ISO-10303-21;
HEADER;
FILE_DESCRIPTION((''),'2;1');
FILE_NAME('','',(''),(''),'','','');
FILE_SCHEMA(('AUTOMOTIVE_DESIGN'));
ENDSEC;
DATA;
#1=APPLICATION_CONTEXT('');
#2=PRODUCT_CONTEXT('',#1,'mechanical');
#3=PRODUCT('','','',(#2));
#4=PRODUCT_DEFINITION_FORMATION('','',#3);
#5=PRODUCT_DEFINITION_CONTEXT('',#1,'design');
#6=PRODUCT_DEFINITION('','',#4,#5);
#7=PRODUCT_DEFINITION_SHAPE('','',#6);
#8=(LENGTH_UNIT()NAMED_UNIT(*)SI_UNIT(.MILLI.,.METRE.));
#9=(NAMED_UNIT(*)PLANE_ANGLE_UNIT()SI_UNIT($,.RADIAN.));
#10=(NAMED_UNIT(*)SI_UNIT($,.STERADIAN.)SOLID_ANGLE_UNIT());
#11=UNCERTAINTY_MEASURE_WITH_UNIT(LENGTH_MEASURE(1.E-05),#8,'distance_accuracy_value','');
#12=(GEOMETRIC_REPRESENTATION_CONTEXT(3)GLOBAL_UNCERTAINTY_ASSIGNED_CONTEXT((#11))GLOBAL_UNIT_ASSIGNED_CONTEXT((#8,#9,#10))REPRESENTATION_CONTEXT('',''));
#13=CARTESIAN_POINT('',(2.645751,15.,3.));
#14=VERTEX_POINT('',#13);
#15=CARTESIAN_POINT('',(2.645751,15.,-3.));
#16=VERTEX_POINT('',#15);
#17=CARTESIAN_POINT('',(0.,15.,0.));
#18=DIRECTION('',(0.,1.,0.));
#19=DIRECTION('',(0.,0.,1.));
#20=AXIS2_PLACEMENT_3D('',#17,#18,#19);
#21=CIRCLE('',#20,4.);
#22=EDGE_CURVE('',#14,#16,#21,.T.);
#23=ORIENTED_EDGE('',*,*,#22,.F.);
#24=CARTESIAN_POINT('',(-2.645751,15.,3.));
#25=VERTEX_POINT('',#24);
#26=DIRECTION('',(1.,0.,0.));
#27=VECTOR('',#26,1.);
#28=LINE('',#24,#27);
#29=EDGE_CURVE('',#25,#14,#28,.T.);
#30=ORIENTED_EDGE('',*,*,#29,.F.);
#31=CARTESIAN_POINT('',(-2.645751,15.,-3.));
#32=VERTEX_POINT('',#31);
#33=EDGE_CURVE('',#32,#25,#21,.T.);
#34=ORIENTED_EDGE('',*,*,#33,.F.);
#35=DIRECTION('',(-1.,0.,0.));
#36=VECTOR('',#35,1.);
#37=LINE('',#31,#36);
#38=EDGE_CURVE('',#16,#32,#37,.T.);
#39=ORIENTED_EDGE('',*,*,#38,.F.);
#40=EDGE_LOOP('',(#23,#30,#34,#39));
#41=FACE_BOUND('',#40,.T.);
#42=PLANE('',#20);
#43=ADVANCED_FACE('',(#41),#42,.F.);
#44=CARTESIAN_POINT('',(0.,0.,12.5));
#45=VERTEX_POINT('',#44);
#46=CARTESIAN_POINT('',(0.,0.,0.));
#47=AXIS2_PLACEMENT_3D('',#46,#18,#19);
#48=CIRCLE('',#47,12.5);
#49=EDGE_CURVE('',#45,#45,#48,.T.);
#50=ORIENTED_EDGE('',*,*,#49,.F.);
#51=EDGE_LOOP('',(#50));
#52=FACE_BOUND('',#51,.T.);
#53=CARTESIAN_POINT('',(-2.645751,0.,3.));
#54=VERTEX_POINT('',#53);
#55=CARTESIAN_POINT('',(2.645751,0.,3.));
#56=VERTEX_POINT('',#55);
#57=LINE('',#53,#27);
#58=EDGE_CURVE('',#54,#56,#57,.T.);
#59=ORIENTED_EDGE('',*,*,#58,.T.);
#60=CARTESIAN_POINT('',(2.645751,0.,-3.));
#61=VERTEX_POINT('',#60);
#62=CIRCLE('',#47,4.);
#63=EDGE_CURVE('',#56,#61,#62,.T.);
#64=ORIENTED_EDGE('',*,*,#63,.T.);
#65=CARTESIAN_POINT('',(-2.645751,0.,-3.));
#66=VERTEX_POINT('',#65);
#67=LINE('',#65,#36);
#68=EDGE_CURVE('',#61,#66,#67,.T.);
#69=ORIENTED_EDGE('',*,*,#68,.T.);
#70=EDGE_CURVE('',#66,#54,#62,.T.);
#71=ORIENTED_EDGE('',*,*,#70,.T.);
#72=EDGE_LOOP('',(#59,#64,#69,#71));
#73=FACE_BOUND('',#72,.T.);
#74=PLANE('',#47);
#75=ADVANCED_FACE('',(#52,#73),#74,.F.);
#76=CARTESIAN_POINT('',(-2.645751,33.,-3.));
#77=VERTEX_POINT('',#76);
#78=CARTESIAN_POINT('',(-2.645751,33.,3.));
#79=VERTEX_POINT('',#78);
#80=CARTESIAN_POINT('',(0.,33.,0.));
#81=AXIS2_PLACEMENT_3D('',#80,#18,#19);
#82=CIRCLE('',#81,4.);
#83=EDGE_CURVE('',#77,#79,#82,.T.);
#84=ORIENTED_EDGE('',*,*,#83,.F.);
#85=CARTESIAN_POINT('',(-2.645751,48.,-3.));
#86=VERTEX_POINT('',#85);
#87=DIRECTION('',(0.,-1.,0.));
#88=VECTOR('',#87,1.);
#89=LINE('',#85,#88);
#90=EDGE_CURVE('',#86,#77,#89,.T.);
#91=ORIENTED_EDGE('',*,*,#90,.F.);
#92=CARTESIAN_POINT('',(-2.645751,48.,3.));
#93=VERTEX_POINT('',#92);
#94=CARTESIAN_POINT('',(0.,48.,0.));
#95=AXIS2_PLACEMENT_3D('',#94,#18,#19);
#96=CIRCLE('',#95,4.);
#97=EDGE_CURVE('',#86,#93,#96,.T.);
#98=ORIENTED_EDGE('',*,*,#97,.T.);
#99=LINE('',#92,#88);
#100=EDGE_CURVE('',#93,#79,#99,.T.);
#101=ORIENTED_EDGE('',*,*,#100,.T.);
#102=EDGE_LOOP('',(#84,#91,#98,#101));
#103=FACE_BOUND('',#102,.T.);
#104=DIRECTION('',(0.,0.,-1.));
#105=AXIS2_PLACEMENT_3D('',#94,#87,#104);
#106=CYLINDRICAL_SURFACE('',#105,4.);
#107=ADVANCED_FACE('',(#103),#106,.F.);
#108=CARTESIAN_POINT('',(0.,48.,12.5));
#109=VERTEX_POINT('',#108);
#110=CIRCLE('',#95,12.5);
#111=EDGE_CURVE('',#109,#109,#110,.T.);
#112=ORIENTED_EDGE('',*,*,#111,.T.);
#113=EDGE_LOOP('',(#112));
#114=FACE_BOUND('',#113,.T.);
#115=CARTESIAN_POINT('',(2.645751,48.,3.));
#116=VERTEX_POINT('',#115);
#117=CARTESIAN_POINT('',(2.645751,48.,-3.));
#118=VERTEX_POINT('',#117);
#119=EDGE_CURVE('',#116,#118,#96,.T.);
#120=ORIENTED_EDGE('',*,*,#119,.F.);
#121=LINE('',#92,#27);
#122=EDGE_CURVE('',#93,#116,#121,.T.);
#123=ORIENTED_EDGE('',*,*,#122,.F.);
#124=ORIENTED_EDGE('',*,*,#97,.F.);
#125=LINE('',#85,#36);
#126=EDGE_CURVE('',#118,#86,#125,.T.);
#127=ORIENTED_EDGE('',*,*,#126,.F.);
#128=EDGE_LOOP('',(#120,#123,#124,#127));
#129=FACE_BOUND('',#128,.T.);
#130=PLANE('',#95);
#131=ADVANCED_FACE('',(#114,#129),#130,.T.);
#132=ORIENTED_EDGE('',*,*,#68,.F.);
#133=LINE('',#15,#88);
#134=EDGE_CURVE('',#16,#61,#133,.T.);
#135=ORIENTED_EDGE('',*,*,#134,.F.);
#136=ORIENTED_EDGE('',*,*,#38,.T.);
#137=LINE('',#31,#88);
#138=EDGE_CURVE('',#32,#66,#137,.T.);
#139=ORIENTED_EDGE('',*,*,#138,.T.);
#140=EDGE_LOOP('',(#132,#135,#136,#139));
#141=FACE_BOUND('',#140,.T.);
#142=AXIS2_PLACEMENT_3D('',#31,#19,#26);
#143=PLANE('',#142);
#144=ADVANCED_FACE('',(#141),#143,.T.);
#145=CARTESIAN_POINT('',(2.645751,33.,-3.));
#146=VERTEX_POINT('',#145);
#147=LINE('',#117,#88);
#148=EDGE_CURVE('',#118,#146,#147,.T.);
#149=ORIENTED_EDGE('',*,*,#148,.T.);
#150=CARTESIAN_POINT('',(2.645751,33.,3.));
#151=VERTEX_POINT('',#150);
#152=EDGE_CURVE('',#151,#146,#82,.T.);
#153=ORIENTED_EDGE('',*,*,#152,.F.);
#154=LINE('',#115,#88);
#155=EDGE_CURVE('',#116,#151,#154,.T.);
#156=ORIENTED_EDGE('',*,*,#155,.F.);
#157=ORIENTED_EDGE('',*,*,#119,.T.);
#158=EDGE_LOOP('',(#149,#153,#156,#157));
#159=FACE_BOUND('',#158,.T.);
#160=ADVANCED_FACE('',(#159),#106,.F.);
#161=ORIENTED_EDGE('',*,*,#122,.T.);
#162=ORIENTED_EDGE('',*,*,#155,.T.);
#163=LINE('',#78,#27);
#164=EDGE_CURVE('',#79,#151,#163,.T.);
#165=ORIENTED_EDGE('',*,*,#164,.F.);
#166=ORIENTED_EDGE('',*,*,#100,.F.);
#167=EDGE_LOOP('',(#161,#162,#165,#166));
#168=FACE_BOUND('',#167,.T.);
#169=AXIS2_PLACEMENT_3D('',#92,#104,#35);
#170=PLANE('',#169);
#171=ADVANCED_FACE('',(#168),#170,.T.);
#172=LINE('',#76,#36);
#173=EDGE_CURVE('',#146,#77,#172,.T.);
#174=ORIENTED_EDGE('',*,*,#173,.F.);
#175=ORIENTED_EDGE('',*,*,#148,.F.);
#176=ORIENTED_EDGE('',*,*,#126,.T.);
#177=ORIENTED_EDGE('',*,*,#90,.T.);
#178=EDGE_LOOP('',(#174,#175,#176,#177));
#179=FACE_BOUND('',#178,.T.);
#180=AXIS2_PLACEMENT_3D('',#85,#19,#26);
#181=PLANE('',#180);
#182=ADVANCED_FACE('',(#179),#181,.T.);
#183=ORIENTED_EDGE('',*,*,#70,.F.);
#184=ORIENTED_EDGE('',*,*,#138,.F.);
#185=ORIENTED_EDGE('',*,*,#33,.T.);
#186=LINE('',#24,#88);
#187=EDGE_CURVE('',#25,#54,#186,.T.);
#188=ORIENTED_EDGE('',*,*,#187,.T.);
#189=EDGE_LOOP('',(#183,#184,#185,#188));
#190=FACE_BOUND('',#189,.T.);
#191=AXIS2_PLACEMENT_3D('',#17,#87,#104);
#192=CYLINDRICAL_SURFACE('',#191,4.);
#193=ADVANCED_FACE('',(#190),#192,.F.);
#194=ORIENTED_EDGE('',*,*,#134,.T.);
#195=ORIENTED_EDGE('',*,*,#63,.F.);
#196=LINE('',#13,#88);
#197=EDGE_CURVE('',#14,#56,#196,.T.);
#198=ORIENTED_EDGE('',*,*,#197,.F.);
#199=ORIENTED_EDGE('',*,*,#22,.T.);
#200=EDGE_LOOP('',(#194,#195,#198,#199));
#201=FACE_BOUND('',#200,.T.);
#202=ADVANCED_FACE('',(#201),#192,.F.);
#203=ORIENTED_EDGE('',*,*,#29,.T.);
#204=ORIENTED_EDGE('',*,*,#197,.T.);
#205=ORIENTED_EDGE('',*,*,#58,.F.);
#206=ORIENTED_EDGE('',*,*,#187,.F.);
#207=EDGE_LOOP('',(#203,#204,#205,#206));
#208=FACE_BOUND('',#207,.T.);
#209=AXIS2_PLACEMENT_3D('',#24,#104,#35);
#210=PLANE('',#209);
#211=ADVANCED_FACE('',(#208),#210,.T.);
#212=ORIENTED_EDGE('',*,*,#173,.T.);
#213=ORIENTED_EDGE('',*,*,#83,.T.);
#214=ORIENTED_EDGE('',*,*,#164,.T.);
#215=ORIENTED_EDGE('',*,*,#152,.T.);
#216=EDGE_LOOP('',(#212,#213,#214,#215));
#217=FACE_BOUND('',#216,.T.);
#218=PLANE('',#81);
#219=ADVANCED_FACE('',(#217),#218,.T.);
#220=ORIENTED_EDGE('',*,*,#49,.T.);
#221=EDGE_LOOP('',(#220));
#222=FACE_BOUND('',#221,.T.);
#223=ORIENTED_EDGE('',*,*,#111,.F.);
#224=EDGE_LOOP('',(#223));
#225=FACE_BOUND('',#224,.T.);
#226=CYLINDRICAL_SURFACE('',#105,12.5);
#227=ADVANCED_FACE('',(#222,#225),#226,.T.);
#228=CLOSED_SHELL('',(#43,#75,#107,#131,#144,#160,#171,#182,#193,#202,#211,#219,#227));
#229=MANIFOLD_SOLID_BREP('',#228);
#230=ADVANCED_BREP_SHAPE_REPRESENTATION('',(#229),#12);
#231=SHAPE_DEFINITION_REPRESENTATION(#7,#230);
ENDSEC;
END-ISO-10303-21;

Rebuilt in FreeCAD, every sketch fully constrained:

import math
import FreeCAD as App
import Part
import Sketcher
from FreeCAD import Vector

doc = App.newDocument("Part")
body = doc.addObject("PartDesign::Body", "Body")

sketch1 = body.newObject("Sketcher::SketchObject", "Sketch")
sketch1.AttachmentSupport = (doc.getObject("XZ_Plane"), [""])
sketch1.MapMode = "FlatFace"
sketch1.addGeometry(Part.Circle(Vector(0, 0, 0), Vector(0, 0, 1), 12.5), False)
sketch1.addConstraint([
    Sketcher.Constraint("Coincident", 0, 3, -1, 1),
    Sketcher.Constraint("Diameter", 0, 25.0),
])
pad1 = body.newObject("PartDesign::Pad", "Pad")
pad1.Profile = sketch1
pad1.Length = 48
pad1.Reversed = True

sketch2 = body.newObject("Sketcher::SketchObject", "Sketch001")
sketch2.AttachmentSupport = (doc.getObject("XZ_Plane"), [""])
sketch2.MapMode = "FlatFace"
sketch2.addGeometry([
    Part.LineSegment(Vector(-2.645751, 3, 0), Vector(2.645751, 3, 0)),
    Part.ArcOfCircle(Part.Circle(Vector(0, 0, 0), Vector(0, 0, 1), 4), math.radians(-48.590378), math.radians(48.590378)),
    Part.LineSegment(Vector(2.645751, -3, 0), Vector(-2.645751, -3, 0)),
    Part.ArcOfCircle(Part.Circle(Vector(0, 0, 0), Vector(0, 0, 1), 4), math.radians(131.409622), math.radians(228.590378)),
], False)
sketch2.addConstraint([
    Sketcher.Constraint("Coincident", 0, 2, 1, 2),
    Sketcher.Constraint("Coincident", 1, 1, 2, 1),
    Sketcher.Constraint("Coincident", 2, 2, 3, 2),
    Sketcher.Constraint("Coincident", 3, 1, 0, 1),
    Sketcher.Constraint("Horizontal", 0),
    Sketcher.Constraint("Horizontal", 2),
    Sketcher.Constraint("Coincident", 1, 3, -1, 1),
    Sketcher.Constraint("Coincident", 3, 3, -1, 1),
    Sketcher.Constraint("Equal", 1, 3),
    Sketcher.Constraint("Vertical", 0, 2, 1, 1),
    Sketcher.Constraint("Radius", 1, 4.0),
    Sketcher.Constraint("DistanceY", -1, 1, 0, 2, 3.0),
])
pocket1 = body.newObject("PartDesign::Pocket", "Pocket")
pocket1.Profile = sketch2
pocket1.Length = 15

sketch3 = body.newObject("Sketcher::SketchObject", "Sketch002")
sketch3.AttachmentSupport = (doc.getObject("XZ_Plane"), [""])
sketch3.MapMode = "FlatFace"
sketch3.AttachmentOffset = App.Placement(Vector(0, 0, -33), App.Rotation())
sketch3.addGeometry([
    Part.LineSegment(Vector(-2.645751, 3, 0), Vector(2.645751, 3, 0)),
    Part.ArcOfCircle(Part.Circle(Vector(0, 0, 0), Vector(0, 0, 1), 4), math.radians(-48.590378), math.radians(48.590378)),
    Part.LineSegment(Vector(2.645751, -3, 0), Vector(-2.645751, -3, 0)),
    Part.ArcOfCircle(Part.Circle(Vector(0, 0, 0), Vector(0, 0, 1), 4), math.radians(131.409622), math.radians(228.590378)),
], False)
sketch3.addConstraint([
    Sketcher.Constraint("Coincident", 0, 2, 1, 2),
    Sketcher.Constraint("Coincident", 1, 1, 2, 1),
    Sketcher.Constraint("Coincident", 2, 2, 3, 2),
    Sketcher.Constraint("Coincident", 3, 1, 0, 1),
    Sketcher.Constraint("Horizontal", 0),
    Sketcher.Constraint("Horizontal", 2),
    Sketcher.Constraint("Coincident", 1, 3, -1, 1),
    Sketcher.Constraint("Coincident", 3, 3, -1, 1),
    Sketcher.Constraint("Equal", 1, 3),
    Sketcher.Constraint("Vertical", 0, 2, 1, 1),
    Sketcher.Constraint("Radius", 1, 4.0),
    Sketcher.Constraint("DistanceY", -1, 1, 0, 2, 3.0),
])
pocket2 = body.newObject("PartDesign::Pocket", "Pocket001")
pocket2.Profile = sketch3
pocket2.Length = 15

doc.recompute()
